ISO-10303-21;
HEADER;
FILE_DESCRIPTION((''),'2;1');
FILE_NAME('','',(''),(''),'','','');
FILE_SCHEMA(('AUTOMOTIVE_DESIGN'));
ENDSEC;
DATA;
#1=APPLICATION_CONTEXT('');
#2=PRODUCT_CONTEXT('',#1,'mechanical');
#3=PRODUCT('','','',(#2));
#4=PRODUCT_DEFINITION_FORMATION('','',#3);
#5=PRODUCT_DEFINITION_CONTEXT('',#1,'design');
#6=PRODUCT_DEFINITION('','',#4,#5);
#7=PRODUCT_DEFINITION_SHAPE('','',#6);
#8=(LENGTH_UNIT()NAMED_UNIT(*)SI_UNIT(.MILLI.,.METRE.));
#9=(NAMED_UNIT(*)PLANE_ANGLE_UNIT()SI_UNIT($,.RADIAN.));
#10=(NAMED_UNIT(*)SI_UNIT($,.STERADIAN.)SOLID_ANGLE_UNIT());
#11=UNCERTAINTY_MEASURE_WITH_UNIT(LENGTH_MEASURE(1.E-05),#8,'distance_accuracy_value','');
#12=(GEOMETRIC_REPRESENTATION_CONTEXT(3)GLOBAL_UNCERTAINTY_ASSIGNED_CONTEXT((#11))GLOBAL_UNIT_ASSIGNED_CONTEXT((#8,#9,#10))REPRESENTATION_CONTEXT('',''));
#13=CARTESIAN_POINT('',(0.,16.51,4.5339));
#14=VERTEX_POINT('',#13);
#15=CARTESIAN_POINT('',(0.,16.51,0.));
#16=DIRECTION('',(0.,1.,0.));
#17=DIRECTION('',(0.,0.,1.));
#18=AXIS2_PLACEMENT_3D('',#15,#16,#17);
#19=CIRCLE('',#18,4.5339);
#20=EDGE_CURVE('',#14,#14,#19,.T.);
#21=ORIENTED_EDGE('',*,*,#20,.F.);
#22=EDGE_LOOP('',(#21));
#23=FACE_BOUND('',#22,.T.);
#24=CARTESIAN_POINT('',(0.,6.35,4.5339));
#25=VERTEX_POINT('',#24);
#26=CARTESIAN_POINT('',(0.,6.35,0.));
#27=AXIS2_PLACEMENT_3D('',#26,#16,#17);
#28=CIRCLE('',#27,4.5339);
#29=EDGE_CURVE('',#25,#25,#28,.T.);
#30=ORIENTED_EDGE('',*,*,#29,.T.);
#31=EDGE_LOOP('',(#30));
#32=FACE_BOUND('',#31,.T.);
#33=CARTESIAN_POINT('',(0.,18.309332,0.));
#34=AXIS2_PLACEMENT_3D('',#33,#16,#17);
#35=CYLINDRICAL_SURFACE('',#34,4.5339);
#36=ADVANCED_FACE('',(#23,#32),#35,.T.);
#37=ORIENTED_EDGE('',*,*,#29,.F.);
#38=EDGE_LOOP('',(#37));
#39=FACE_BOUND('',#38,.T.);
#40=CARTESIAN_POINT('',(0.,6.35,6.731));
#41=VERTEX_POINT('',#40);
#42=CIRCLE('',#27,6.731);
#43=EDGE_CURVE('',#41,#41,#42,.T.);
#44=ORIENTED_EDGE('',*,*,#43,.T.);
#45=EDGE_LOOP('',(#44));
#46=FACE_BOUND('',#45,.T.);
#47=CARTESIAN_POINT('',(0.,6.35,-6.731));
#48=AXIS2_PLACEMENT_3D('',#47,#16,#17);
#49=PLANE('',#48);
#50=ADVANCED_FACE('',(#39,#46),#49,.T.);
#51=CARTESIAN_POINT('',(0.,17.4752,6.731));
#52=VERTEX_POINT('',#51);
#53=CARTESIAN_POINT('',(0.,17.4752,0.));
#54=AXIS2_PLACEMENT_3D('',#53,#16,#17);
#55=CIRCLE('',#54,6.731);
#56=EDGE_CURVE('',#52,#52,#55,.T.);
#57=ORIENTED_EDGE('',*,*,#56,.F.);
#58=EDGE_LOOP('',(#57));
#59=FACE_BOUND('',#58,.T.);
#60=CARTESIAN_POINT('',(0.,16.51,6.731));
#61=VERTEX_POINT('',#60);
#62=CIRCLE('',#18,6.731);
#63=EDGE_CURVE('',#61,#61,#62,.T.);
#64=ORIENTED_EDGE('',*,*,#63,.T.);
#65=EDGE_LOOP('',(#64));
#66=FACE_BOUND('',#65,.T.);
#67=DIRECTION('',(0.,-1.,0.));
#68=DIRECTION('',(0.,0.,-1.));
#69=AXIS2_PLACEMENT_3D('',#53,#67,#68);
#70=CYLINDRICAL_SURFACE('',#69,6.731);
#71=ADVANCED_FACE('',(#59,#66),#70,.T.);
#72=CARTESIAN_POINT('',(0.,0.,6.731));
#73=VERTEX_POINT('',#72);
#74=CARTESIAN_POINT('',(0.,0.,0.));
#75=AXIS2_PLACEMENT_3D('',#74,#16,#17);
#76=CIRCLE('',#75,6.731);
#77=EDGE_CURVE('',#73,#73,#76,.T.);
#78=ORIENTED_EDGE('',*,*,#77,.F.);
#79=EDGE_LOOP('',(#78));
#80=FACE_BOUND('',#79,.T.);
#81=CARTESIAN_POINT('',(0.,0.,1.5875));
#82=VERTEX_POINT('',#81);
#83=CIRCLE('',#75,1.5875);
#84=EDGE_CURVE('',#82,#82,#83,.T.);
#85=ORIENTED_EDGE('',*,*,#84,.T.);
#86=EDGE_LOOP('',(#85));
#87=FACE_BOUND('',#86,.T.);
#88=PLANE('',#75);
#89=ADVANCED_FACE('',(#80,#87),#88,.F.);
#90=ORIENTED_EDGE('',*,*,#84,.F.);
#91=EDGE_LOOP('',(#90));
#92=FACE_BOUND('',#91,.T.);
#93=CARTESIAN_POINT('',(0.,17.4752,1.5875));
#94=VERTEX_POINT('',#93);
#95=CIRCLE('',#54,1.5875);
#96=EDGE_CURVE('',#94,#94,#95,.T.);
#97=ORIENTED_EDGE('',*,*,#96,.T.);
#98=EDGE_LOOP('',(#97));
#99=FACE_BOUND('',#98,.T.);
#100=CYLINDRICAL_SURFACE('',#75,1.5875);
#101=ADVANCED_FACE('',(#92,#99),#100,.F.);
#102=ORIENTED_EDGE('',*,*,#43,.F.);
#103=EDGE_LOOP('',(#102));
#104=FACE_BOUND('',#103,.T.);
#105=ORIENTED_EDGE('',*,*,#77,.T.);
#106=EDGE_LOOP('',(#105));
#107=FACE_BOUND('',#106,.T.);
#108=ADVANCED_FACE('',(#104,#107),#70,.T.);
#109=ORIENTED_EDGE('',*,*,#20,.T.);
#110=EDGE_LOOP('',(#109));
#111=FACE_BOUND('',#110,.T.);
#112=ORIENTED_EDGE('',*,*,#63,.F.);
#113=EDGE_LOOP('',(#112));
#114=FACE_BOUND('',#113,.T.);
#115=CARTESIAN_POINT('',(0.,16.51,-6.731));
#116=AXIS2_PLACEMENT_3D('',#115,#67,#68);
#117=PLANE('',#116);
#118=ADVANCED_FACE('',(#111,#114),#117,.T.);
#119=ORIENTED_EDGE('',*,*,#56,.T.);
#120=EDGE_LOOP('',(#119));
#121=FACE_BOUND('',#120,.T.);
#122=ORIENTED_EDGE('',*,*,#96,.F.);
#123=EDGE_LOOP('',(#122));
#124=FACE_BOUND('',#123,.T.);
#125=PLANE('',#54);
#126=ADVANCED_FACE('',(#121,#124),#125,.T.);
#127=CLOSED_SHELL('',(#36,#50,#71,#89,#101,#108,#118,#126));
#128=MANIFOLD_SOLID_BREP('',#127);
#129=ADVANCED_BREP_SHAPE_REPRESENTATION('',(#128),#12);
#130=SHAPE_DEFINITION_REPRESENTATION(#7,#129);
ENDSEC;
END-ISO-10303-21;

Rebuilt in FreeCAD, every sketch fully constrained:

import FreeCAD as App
import Part
import Sketcher
from FreeCAD import Vector
Q = App.Units.Quantity


def add_polygon(sketch, points):
    """Adds a closed chain of lines whose ends are joined by coincident constraints."""
    first, n = sketch.GeometryCount, len(points)
    for a, b in zip(points, points[1:] + points[:1]):
        sketch.addGeometry(Part.LineSegment(App.Vector(*a, 0), App.Vector(*b, 0)), False)
    for i in range(n):
        sketch.addConstraint(Sketcher.Constraint("Coincident", first + i, 2, first + (i + 1) % n, 1))

doc = App.newDocument("Part")
body = doc.addObject("PartDesign::Body", "Body")

# Sketch on XZ plane
sketch1 = body.newObject("Sketcher::SketchObject", "Sketch")
sketch1.AttachmentSupport = (doc.getObject("XZ_Plane"), [""])
sketch1.MapMode = "FlatFace"
sketch1.addGeometry(Part.Circle(Vector(0, 0, 0), Vector(0, 0, 1), 7), False)
sketch1.addConstraint(Sketcher.Constraint("Coincident", 0, 3, -1, 1))
sketch1.addConstraint(Sketcher.Constraint("Diameter", 0, Q("0.53 in")))
pad1 = body.newObject("PartDesign::Pad", "Pad")
pad1.Profile = sketch1
pad1.Length = Q("0.688 in")
pad1.Reversed = True

# Sketch on YZ plane
sketch2 = body.newObject("Sketcher::SketchObject", "Sketch001")
sketch2.AttachmentSupport = (doc.getObject("YZ_Plane"), [""])
sketch2.MapMode = "FlatFace"
add_polygon(sketch2, [(16.5, -4.5), (6.3, -4.5), (6.3, -6.7), (16.5, -6.7)])  # lines 0-3
sketch2.addConstraint(Sketcher.Constraint("Horizontal", 0))
sketch2.addConstraint(Sketcher.Constraint("Vertical", 1))
sketch2.addConstraint(Sketcher.Constraint("Horizontal", 2))
sketch2.addConstraint(Sketcher.Constraint("Vertical", 3))
sketch2.addConstraint(Sketcher.Constraint("DistanceX", 0, 2, 0, 1, Q("0.4 in")))
sketch2.addConstraint(Sketcher.Constraint("DistanceX", -1, 1, 0, 2, Q("0.25 in")))
sketch2.addConstraint(Sketcher.Constraint("DistanceY", 1, 2, 1, 1, Q("0.0865 in")))
sketch2.addConstraint(Sketcher.Constraint("DistanceY", 1, 2, -1, 1, Q("0.265 in")))
groove = body.newObject("PartDesign::Groove", "Groove")
groove.Profile = sketch2
groove.ReferenceAxis = (sketch2, ["H_Axis"])
groove.Angle = 360

# Sketch on XZ plane
sketch3 = body.newObject("Sketcher::SketchObject", "Sketch002")
sketch3.AttachmentSupport = (doc.getObject("XZ_Plane"), [""])
sketch3.MapMode = "FlatFace"
sketch3.AttachmentOffset = App.Placement(Vector(0, 0, -0.688 * 25.4), App.Rotation())
sketch3.addGeometry(Part.Circle(Vector(0, 0, 0), Vector(0, 0, 1), 1.6), False)
sketch3.addConstraint(Sketcher.Constraint("Coincident", 0, 3, -1, 1))
sketch3.addConstraint(Sketcher.Constraint("Diameter", 0, Q("0.125 in")))
pocket1 = body.newObject("PartDesign::Pocket", "Pocket")
pocket1.Profile = sketch3
pocket1.Length = Q("0.688 in")
pocket1.Reversed = True

doc.recompute()
